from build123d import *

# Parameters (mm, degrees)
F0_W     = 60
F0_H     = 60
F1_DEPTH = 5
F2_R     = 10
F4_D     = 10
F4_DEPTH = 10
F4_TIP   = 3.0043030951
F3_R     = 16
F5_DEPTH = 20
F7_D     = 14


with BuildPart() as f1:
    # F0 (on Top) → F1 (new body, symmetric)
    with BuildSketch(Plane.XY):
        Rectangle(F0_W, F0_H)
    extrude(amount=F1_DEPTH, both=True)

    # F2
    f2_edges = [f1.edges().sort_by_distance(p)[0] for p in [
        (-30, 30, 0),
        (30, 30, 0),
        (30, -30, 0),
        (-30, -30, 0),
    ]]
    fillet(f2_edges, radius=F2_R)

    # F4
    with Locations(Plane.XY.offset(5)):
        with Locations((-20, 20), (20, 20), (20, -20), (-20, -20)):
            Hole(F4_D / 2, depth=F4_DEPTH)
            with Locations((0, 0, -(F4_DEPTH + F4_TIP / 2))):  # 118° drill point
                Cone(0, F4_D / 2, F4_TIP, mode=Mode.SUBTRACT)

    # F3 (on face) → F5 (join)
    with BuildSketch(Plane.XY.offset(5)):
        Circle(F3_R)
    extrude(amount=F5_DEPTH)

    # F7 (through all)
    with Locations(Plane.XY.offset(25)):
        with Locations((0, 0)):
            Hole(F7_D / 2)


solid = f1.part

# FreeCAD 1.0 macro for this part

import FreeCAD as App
import Part
import Sketcher
Q = App.Units.Quantity


def edges_at(feature, points):
    """Names of the edges that pass closest to the given points."""
    edges = feature.Shape.Edges
    near = lambda p: min(range(len(edges)), key=lambda i: edges[i].distToShape(Part.Vertex(*p))[0])
    return sorted({f"Edge{near(p) + 1}" for p in points})

doc = App.newDocument("Part")
params = doc.addObject("Spreadsheet::Sheet", "Params")
for row, (alias, value) in enumerate([
    ("sketch1_width", "60 mm"),
    ("pad1_length", "10 mm"),
    ("fillet_radius", "10 mm"),
    ("sketch2_diameter", "10 mm"),
    ("hole_diameter", "10 mm"),
    ("hole_depth", "10 mm"),
    ("sketch3_diameter", "32 mm"),
    ("pad2_length", "20 mm"),
    ("sketch4_diameter", "14 mm"),
    ("hole2_diameter", "14 mm"),
], start=1):
    params.set(f"A{row}", alias)
    params.set(f"B{row}", "=" + value)
    params.setAlias(f"B{row}", alias)

body = doc.addObject("PartDesign::Body", "Body")

# Sketch on XY plane
sketch1 = body.newObject("Sketcher::SketchObject", "Sketch")
sketch1.AttachmentSupport = (doc.getObject("XY_Plane"), [""])
sketch1.MapMode = "FlatFace"
sketch1.addGeometry([
    Part.LineSegment(App.Vector(-30, 30, 0), App.Vector(-30, -30, 0)),
    Part.LineSegment(App.Vector(-30, -30, 0), App.Vector(30, -30, 0)),
    Part.LineSegment(App.Vector(30, -30, 0), App.Vector(30, 30, 0)),
    Part.LineSegment(App.Vector(30, 30, 0), App.Vector(-30, 30, 0)),
], False)
sketch1.addConstraint([
    Sketcher.Constraint("Coincident", 0, 2, 1, 1),
    Sketcher.Constraint("Coincident", 1, 2, 2, 1),
    Sketcher.Constraint("Coincident", 2, 2, 3, 1),
    Sketcher.Constraint("Coincident", 3, 2, 0, 1),
    Sketcher.Constraint("Vertical", 0),
    Sketcher.Constraint("Horizontal", 1),
    Sketcher.Constraint("Vertical", 2),
    Sketcher.Constraint("Horizontal", 3),
    Sketcher.Constraint("Symmetric", 0, 2, 2, 2, -1, 1),
    Sketcher.Constraint("Equal", 3, 0),
    Sketcher.Constraint("DistanceX", 1, 1, 1, 2, Q("60 mm")),
])
sketch1.setExpression("Constraints[10]", "Params.sketch1_width")
pad1 = body.newObject("PartDesign::Pad", "Pad")
pad1.Profile = sketch1
pad1.setExpression("Length", "Params.pad1_length")
pad1.Midplane = True
doc.recompute()

fillet = body.newObject("PartDesign::Fillet", "Fillet")
fillet.Base = (pad1, edges_at(pad1, [
    (-30, 30, 0),
    (30, 30, 0),
    (30, -30, 0),
    (-30, -30, 0),
]))
fillet.setExpression("Radius", "Params.fillet_radius")

# Sketch on XY plane
sketch2 = body.newObject("Sketcher::SketchObject", "Sketch001")
sketch2.AttachmentSupport = (doc.getObject("XY_Plane"), [""])
sketch2.MapMode = "FlatFace"
sketch2.AttachmentOffset = App.Placement(App.Vector(0, 0, 5), App.Rotation())
sketch2.addGeometry([
    Part.Circle(App.Vector(-20, 20, 0), App.Vector(0, 0, 1), 5),
    Part.Circle(App.Vector(20, 20, 0), App.Vector(0, 0, 1), 5),
    Part.Circle(App.Vector(20, -20, 0), App.Vector(0, 0, 1), 5),
    Part.Circle(App.Vector(-20, -20, 0), App.Vector(0, 0, 1), 5),
], False)
sketch2.addConstraint([
    Sketcher.Constraint("Equal", 0, 1),
    Sketcher.Constraint("Equal", 1, 2),
    Sketcher.Constraint("Equal", 2, 3),
    Sketcher.Constraint("Symmetric", 0, 3, 2, 3, -1, 1),
    Sketcher.Constraint("Symmetric", 1, 3, 3, 3, -1, 1),
    Sketcher.Constraint("Symmetric", 0, 3, 1, 3, -2),
    Sketcher.Constraint("Diameter", 0, Q("10 mm")),
    Sketcher.Constraint("DistanceX", 0, 3, -1, 1, Q("20 mm")),
    Sketcher.Constraint("DistanceY", -1, 1, 0, 3, Q("20 mm")),
])
sketch2.setExpression("Constraints[6]", "Params.sketch2_diameter")
doc.recompute()
hole = body.newObject("PartDesign::Hole", "Hole")
hole.Profile = sketch2
hole.ThreadType = "None"
hole.setExpression("Diameter", "Params.hole_diameter")
hole.DepthType = "Dimension"
hole.setExpression("Depth", "Params.hole_depth")
hole.DrillPoint = "Angled"
hole.DrillPointAngle = 118

# Sketch on XY plane
sketch3 = body.newObject("Sketcher::SketchObject", "Sketch002")
sketch3.AttachmentSupport = (doc.getObject("XY_Plane"), [""])
sketch3.MapMode = "FlatFace"
sketch3.AttachmentOffset = App.Placement(App.Vector(0, 0, 5), App.Rotation())
sketch3.addGeometry(Part.Circle(App.Vector(0, 0, 0), App.Vector(0, 0, 1), 16), False)
sketch3.addConstraint([
    Sketcher.Constraint("Coincident", 0, 3, -1, 1),
    Sketcher.Constraint("Diameter", 0, Q("32 mm")),
])
sketch3.setExpression("Constraints[1]", "Params.sketch3_diameter")
pad2 = body.newObject("PartDesign::Pad", "Pad001")
pad2.Profile = sketch3
pad2.setExpression("Length", "Params.pad2_length")

# Sketch on XY plane
sketch4 = body.newObject("Sketcher::SketchObject", "Sketch003")
sketch4.AttachmentSupport = (doc.getObject("XY_Plane"), [""])
sketch4.MapMode = "FlatFace"
sketch4.AttachmentOffset = App.Placement(App.Vector(0, 0, 25), App.Rotation())
sketch4.addGeometry(Part.Circle(App.Vector(0, 0, 0), App.Vector(0, 0, 1), 7), False)
sketch4.addConstraint([
    Sketcher.Constraint("Coincident", 0, 3, -1, 1),
    Sketcher.Constraint("Diameter", 0, Q("14 mm")),
])
sketch4.setExpression("Constraints[1]", "Params.sketch4_diameter")
doc.recompute()
hole2 = body.newObject("PartDesign::Hole", "Hole001")
hole2.Profile = sketch4
hole2.ThreadType = "None"
hole2.setExpression("Diameter", "Params.hole2_diameter")
hole2.DepthType = "ThroughAll"

doc.recompute()
